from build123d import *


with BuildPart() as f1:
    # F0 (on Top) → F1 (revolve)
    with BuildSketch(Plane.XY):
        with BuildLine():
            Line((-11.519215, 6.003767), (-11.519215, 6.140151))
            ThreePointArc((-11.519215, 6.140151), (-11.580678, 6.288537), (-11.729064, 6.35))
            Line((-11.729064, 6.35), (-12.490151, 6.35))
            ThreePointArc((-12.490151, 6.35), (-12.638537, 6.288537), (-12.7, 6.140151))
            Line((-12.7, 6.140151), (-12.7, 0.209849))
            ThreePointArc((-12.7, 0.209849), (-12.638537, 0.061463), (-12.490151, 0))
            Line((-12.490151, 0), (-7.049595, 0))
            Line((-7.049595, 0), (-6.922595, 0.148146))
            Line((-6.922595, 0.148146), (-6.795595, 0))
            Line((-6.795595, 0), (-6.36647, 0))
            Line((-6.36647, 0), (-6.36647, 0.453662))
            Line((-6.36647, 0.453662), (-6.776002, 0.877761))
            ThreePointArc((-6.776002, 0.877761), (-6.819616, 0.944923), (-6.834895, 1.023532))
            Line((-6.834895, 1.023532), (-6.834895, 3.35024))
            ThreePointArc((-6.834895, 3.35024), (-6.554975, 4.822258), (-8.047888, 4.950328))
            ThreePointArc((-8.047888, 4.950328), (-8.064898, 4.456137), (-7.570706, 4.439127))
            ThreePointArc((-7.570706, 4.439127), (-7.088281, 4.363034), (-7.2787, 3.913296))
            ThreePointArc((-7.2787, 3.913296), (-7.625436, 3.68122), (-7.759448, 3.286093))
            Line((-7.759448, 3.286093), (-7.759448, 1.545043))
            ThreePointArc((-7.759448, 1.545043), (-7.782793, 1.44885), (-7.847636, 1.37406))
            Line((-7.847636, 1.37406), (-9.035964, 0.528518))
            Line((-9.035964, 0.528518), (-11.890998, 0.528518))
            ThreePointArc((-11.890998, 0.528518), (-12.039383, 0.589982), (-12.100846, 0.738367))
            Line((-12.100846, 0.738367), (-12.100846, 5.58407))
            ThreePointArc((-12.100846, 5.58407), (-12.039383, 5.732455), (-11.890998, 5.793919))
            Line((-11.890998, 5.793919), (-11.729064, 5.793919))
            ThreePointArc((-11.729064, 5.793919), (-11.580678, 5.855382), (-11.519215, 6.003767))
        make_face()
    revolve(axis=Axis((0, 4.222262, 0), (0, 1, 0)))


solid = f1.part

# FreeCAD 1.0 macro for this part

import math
import FreeCAD as App
import Part
import Sketcher

V = App.Vector

doc = App.newDocument("Part")
body = doc.addObject("PartDesign::Body", "Body")

sketch1 = body.newObject("Sketcher::SketchObject", "Sketch")
sketch1.AttachmentSupport = (doc.getObject("XY_Plane"), [""])
sketch1.MapMode = "FlatFace"
sketch1.addGeometry(Part.LineSegment(V(-11.52, 6, 0), V(-11.52, 6.14, 0)), False)
sketch1.addGeometry(Part.ArcOfCircle(Part.Circle(V(-11.73, 6.14, 0), V(0, 0, 1), 0.21), math.radians(0), math.radians(90)), False)
sketch1.addGeometry(Part.LineSegment(V(-11.73, 6.35, 0), V(-12.49, 6.35, 0)), False)
sketch1.addGeometry(Part.ArcOfCircle(Part.Circle(V(-12.49, 6.14, 0), V(0, 0, 1), 0.21), math.radians(90), math.radians(180)), False)
sketch1.addGeometry(Part.LineSegment(V(-12.7, 6.14, 0), V(-12.7, 0.21, 0)), False)
sketch1.addGeometry(Part.ArcOfCircle(Part.Circle(V(-12.49, 0.21, 0), V(0, 0, 1), 0.21), math.radians(180), math.radians(270)), False)
sketch1.addGeometry(Part.LineSegment(V(-12.49, 0, 0), V(-7.05, 0, 0)), False)
sketch1.addGeometry(Part.LineSegment(V(-7.05, 0, 0), V(-6.92, 0.15, 0)), False)
sketch1.addGeometry(Part.LineSegment(V(-6.92, 0.15, 0), V(-6.8, 0, 0)), False)
sketch1.addGeometry(Part.LineSegment(V(-6.8, 0, 0), V(-6.37, 0, 0)), False)
sketch1.addGeometry(Part.LineSegment(V(-6.37, 0, 0), V(-6.37, 0.45, 0)), False)
sketch1.addGeometry(Part.LineSegment(V(-6.37, 0.45, 0), V(-6.78, 0.88, 0)), False)
sketch1.addGeometry(Part.ArcOfCircle(Part.Circle(V(-6.63, 1.02, 0), V(0, 0, 1), 0.21), math.radians(180), math.radians(224)), False)
sketch1.addGeometry(Part.LineSegment(V(-6.83, 1.02, 0), V(-6.83, 3.35, 0)), False)
sketch1.addGeometry(Part.ArcOfCircle(Part.Circle(V(-7.36, 4.21, 0), V(0, 0, 1), 1.01), math.radians(-59), math.radians(133)), False)
sketch1.addGeometry(Part.ArcOfCircle(Part.Circle(V(-7.81, 4.69, 0), V(0, 0, 1), 0.35), math.radians(133), math.radians(313)), False)
sketch1.addGeometry(Part.ArcOfCircle(Part.Circle(V(-7.36, 4.21, 0), V(0, 0, 1), 0.31), math.radians(-75), math.radians(133)), False)
sketch1.addGeometry(Part.ArcOfCircle(Part.Circle(V(-7.11, 3.29, 0), V(0, 0, 1), 0.65), math.radians(105), math.radians(180)), False)
sketch1.addGeometry(Part.LineSegment(V(-7.76, 3.29, 0), V(-7.76, 1.55, 0)), False)
sketch1.addGeometry(Part.ArcOfCircle(Part.Circle(V(-7.97, 1.55, 0), V(0, 0, 1), 0.21), math.radians(-55), math.radians(0)), False)
sketch1.addGeometry(Part.LineSegment(V(-7.85, 1.37, 0), V(-9.04, 0.53, 0)), False)
sketch1.addGeometry(Part.LineSegment(V(-9.04, 0.53, 0), V(-11.89, 0.53, 0)), False)
sketch1.addGeometry(Part.ArcOfCircle(Part.Circle(V(-11.89, 0.74, 0), V(0, 0, 1), 0.21), math.radians(-180), math.radians(-90)), False)
sketch1.addGeometry(Part.LineSegment(V(-12.1, 0.74, 0), V(-12.1, 5.58, 0)), False)
sketch1.addGeometry(Part.ArcOfCircle(Part.Circle(V(-11.89, 5.58, 0), V(0, 0, 1), 0.21), math.radians(90), math.radians(180)), False)
sketch1.addGeometry(Part.LineSegment(V(-11.89, 5.79, 0), V(-11.73, 5.79, 0)), False)
sketch1.addGeometry(Part.ArcOfCircle(Part.Circle(V(-11.73, 6, 0), V(0, 0, 1), 0.21), math.radians(-90), math.radians(0)), False)
sketch1.addConstraint(Sketcher.Constraint("Coincident", 0, 2, 1, 1))
sketch1.addConstraint(Sketcher.Constraint("Coincident", 1, 2, 2, 1))
sketch1.addConstraint(Sketcher.Constraint("Coincident", 2, 2, 3, 1))
sketch1.addConstraint(Sketcher.Constraint("Coincident", 3, 2, 4, 1))
sketch1.addConstraint(Sketcher.Constraint("Coincident", 4, 2, 5, 1))
sketch1.addConstraint(Sketcher.Constraint("Coincident", 5, 2, 6, 1))
sketch1.addConstraint(Sketcher.Constraint("Coincident", 6, 2, 7, 1))
sketch1.addConstraint(Sketcher.Constraint("Coincident", 7, 2, 8, 1))
sketch1.addConstraint(Sketcher.Constraint("Coincident", 8, 2, 9, 1))
sketch1.addConstraint(Sketcher.Constraint("Coincident", 9, 2, 10, 1))
sketch1.addConstraint(Sketcher.Constraint("Coincident", 10, 2, 11, 1))
sketch1.addConstraint(Sketcher.Constraint("Coincident", 11, 2, 12, 2))
sketch1.addConstraint(Sketcher.Constraint("Coincident", 12, 1, 13, 1))
sketch1.addConstraint(Sketcher.Constraint("Coincident", 13, 2, 14, 1))
sketch1.addConstraint(Sketcher.Constraint("Tangent", 14, 2, 15, 1))
sketch1.addConstraint(Sketcher.Constraint("Tangent", 15, 2, 16, 2))
sketch1.addConstraint(Sketcher.Constraint("Tangent", 16, 1, 17, 1))
sketch1.addConstraint(Sketcher.Constraint("Tangent", 17, 2, 18, 1))
sketch1.addConstraint(Sketcher.Constraint("Coincident", 18, 2, 19, 2))
sketch1.addConstraint(Sketcher.Constraint("Coincident", 19, 1, 20, 1))
sketch1.addConstraint(Sketcher.Constraint("Coincident", 20, 2, 21, 1))
sketch1.addConstraint(Sketcher.Constraint("Coincident", 21, 2, 22, 2))
sketch1.addConstraint(Sketcher.Constraint("Coincident", 22, 1, 23, 1))
sketch1.addConstraint(Sketcher.Constraint("Coincident", 23, 2, 24, 2))
sketch1.addConstraint(Sketcher.Constraint("Coincident", 24, 1, 25, 1))
sketch1.addConstraint(Sketcher.Constraint("Coincident", 25, 2, 26, 1))
sketch1.addConstraint(Sketcher.Constraint("Tangent", 26, 2, 0, 1))
sketch1.addConstraint(Sketcher.Constraint("Vertical", 0))
sketch1.addConstraint(Sketcher.Constraint("Horizontal", 2))
sketch1.addConstraint(Sketcher.Constraint("Vertical", 4))
sketch1.addConstraint(Sketcher.Constraint("Horizontal", 6))
sketch1.addConstraint(Sketcher.Constraint("Horizontal", 9))
sketch1.addConstraint(Sketcher.Constraint("Vertical", 10))
sketch1.addConstraint(Sketcher.Constraint("Vertical", 13))
sketch1.addConstraint(Sketcher.Constraint("Vertical", 18))
sketch1.addConstraint(Sketcher.Constraint("Horizontal", 21))
sketch1.addConstraint(Sketcher.Constraint("Vertical", 23))
sketch1.addConstraint(Sketcher.Constraint("Horizontal", 25))
sketch1.addConstraint(Sketcher.Constraint("Coincident", 16, 3, 14, 3))
sketch1.addConstraint(Sketcher.Constraint("Equal", 1, 3))
sketch1.addConstraint(Sketcher.Constraint("Equal", 3, 5))
sketch1.addConstraint(Sketcher.Constraint("Equal", 5, 12))
sketch1.addConstraint(Sketcher.Constraint("Equal", 12, 19))
sketch1.addConstraint(Sketcher.Constraint("Equal", 5, 22))
sketch1.addConstraint(Sketcher.Constraint("Equal", 22, 24))
sketch1.addConstraint(Sketcher.Constraint("Equal", 24, 26))
sketch1.addConstraint(Sketcher.Constraint("PointOnObject", 5, 2, -1))
sketch1.addConstraint(Sketcher.Constraint("PointOnObject", 8, 2, -1))
sketch1.addConstraint(Sketcher.Constraint("Horizontal", 3, 3, 0, 2))
sketch1.addConstraint(Sketcher.Constraint("Horizontal", 0, 2, 3, 2))
sketch1.addConstraint(Sketcher.Constraint("Horizontal", 5, 3, 4, 2))
sketch1.addConstraint(Sketcher.Constraint("Horizontal", 24, 3, 23, 2))
sketch1.addConstraint(Sketcher.Constraint("Vertical", 26, 3, 1, 2))
sketch1.addConstraint(Sketcher.Constraint("Vertical", 5, 3, 2, 2))
sketch1.addConstraint(Sketcher.Constraint("Vertical", 2, 2, 5, 2))
sketch1.addConstraint(Sketcher.Constraint("Vertical", 24, 3, 21, 2))
sketch1.addConstraint(Sketcher.Constraint("Vertical", 21, 2, 24, 1))
sketch1.addConstraint(Sketcher.Constraint("Vertical", 1, 2, 25, 2))
sketch1.addConstraint(Sketcher.Constraint("Equal", 7, 8))
sketch1.addConstraint(Sketcher.Constraint("DistanceX", 3, 2, -1, 1, 12.7))
sketch1.addConstraint(Sketcher.Constraint("DistanceY", -1, 1, 1, 2, 6.35))
sketch1.addConstraint(Sketcher.Constraint("Radius", 16, 0.30992))
sketch1.addConstraint(Sketcher.Constraint("Radius", 17, 0.649511))
sketch1.addConstraint(Sketcher.Constraint("Radius", 22, 0.20985))
sketch1.addConstraint(Sketcher.Constraint("Radius", 14, 1.009227))
sketch1.addConstraint(Sketcher.Constraint("DistanceX", 6, 2, 7, 2, 0.127))
sketch1.addConstraint(Sketcher.Constraint("DistanceX", 4, 2, 21, 2, 0.809002))
sketch1.addConstraint(Sketcher.Constraint("DistanceY", 13, 1, 13, 2, 2.326708))
sketch1.addConstraint(Sketcher.Constraint("DistanceY", 18, 2, 18, 1, 1.74105))
sketch1.addConstraint(Sketcher.Constraint("DistanceX", 16, 1, -1, 1, 7.2787))
sketch1.addConstraint(Sketcher.Constraint("DistanceX", 24, 3, 15, 3, 4.081699))
sketch1.addConstraint(Sketcher.Constraint("DistanceY", 14, 3, 24, 3, 1.371498))
sketch1.addConstraint(Sketcher.Constraint("DistanceY", 10, 2, 11, 2, 0.424099))
sketch1.addConstraint(Sketcher.Constraint("DistanceX", 7, 2, 12, 1, 0.0877))
sketch1.addConstraint(Sketcher.Constraint("DistanceY", 19, 3, 13, 2, 1.805199))
sketch1.addConstraint(Sketcher.Constraint("DistanceY", 15, 3, 14, 2, 0.255601))
sketch1.addConstraint(Sketcher.Constraint("DistanceX", 18, 2, 12, 3, 1.134399))
sketch1.addConstraint(Sketcher.Constraint("DistanceY", 11, 2, 19, 1, 0.496299))
sketch1.addConstraint(Sketcher.Constraint("Distance", 7, 0.195131))
sketch1.addConstraint(Sketcher.Constraint("DistanceX", 2, 2, 2, 1, 0.761087))
sketch1.addConstraint(Sketcher.Constraint("DistanceX", 9, 1, 9, 2, 0.429125))
sketch1.addConstraint(Sketcher.Constraint("DistanceX", 21, 2, 21, 1, 2.855034))
sketch1.addConstraint(Sketcher.Constraint("DistanceY", 0, 1, 0, 2, 0.136384))
sketch1.addConstraint(Sketcher.Constraint("DistanceY", 10, 1, 10, 2, 0.453662))
sketch1.addConstraint(Sketcher.Constraint("DistanceY", 23, 1, 23, 2, 4.845703))
sketch1.addConstraint(Sketcher.Constraint("DistanceY", -1, 1, 12, 3, 1.02353))
sketch1.addConstraint(Sketcher.Constraint("DistanceY", -1, 1, 20, 2, 0.528518))
revolution = body.newObject("PartDesign::Revolution", "Revolution")
revolution.Profile = sketch1
revolution.ReferenceAxis = (sketch1, ["V_Axis"])
revolution.Angle = 360

doc.recompute()
